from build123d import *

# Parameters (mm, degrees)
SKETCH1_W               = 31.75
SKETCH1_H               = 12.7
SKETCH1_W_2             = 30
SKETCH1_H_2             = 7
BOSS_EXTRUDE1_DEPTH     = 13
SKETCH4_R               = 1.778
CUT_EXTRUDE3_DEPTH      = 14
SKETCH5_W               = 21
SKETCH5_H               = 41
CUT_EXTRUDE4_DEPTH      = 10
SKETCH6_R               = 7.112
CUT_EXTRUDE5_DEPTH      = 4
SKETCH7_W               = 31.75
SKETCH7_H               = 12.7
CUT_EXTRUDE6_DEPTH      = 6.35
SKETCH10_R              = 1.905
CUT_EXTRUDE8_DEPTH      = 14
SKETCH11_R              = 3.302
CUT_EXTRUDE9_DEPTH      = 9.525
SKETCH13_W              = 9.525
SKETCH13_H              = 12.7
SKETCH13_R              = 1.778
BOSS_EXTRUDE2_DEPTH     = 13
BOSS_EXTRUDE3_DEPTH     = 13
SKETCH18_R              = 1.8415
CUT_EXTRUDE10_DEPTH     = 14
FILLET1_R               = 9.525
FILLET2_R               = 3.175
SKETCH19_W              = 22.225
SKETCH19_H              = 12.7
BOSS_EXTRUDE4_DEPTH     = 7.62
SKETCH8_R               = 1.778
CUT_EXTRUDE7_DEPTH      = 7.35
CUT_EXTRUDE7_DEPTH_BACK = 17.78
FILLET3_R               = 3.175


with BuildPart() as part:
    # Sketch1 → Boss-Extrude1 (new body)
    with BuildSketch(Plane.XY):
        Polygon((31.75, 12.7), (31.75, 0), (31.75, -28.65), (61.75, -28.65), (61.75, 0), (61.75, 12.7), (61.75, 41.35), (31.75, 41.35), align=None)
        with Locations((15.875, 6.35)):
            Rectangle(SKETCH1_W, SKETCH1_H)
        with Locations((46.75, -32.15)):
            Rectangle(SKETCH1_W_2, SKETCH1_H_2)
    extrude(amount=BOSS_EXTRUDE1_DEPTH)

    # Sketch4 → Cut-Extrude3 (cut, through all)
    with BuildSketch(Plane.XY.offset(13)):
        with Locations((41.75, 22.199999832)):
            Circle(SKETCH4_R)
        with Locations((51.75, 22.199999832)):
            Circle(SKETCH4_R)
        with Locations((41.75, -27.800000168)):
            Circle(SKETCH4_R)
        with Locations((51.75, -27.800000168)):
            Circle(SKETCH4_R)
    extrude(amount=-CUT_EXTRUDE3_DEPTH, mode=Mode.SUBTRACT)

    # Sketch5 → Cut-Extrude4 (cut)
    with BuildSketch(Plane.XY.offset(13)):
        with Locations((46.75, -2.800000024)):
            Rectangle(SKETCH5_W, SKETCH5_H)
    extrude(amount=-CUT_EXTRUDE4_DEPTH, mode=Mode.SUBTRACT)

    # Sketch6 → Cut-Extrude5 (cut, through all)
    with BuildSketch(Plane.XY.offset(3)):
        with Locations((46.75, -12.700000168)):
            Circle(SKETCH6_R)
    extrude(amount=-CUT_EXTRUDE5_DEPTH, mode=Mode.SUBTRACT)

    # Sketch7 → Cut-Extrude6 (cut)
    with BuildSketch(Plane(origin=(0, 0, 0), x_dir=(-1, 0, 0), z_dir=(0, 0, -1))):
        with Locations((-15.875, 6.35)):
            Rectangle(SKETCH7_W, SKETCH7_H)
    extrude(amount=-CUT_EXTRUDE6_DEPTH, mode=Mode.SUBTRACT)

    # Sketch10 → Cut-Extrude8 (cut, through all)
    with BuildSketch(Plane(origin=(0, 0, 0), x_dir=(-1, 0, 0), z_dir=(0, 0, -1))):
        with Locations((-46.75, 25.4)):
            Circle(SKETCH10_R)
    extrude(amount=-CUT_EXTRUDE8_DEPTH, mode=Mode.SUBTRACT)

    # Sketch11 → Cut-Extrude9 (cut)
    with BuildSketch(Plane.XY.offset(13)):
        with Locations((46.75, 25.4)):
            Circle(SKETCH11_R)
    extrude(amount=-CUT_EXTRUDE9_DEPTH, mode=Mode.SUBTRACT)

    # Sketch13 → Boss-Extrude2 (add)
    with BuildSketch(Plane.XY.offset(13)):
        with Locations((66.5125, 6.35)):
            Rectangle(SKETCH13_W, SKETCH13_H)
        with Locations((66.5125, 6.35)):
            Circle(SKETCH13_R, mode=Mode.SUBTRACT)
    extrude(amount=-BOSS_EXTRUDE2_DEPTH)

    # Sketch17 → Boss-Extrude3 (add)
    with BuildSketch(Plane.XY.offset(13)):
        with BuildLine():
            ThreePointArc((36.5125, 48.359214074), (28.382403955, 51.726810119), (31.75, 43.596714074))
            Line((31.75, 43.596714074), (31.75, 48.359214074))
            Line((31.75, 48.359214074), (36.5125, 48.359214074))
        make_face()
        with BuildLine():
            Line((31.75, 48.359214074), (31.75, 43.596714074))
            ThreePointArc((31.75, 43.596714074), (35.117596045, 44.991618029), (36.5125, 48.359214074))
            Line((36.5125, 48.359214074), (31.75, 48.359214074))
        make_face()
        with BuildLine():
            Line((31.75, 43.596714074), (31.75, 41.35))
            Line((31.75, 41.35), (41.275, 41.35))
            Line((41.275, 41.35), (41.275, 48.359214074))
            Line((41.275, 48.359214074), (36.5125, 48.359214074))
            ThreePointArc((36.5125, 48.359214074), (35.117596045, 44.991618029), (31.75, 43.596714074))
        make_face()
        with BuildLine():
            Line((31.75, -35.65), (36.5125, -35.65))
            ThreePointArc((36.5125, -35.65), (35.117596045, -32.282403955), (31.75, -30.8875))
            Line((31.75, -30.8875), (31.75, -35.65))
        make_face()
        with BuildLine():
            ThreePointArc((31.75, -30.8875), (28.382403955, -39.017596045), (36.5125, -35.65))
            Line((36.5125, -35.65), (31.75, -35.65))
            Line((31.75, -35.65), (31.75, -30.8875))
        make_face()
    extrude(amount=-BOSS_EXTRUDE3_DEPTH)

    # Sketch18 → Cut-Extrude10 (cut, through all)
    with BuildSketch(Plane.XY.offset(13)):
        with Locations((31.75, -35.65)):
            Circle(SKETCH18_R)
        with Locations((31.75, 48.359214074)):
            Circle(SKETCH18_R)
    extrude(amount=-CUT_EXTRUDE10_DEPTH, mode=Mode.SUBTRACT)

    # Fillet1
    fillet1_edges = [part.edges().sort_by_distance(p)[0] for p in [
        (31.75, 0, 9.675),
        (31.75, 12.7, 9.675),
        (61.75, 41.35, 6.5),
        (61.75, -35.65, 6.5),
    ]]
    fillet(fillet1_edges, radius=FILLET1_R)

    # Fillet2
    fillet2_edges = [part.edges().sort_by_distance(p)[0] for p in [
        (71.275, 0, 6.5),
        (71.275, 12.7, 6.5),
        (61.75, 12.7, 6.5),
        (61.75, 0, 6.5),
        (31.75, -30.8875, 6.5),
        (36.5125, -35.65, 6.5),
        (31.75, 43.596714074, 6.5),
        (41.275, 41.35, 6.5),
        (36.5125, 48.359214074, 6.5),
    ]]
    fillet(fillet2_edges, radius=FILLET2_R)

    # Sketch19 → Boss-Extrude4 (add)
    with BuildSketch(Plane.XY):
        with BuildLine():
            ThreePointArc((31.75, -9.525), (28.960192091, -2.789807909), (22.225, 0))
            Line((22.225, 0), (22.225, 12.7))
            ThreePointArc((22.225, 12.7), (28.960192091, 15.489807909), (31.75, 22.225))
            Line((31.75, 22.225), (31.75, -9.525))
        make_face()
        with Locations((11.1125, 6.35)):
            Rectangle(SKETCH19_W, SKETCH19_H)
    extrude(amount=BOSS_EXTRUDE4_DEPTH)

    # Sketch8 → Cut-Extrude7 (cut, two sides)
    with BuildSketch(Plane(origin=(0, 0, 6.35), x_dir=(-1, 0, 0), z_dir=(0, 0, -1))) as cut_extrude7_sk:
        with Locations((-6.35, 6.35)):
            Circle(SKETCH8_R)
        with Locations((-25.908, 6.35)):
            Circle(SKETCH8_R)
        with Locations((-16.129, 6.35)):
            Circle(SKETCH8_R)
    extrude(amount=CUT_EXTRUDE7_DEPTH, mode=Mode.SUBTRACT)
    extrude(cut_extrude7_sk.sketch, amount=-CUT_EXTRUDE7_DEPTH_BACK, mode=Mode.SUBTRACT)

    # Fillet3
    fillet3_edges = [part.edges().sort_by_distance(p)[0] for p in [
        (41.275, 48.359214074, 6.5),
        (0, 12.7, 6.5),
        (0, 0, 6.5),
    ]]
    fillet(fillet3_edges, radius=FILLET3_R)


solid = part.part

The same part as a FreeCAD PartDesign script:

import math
import FreeCAD as App
import Part
import Sketcher
from FreeCAD import Vector
Q = App.Units.Quantity


def edges_at(feature, points):
    """Names of the edges that pass closest to the given points."""
    edges = feature.Shape.Edges
    near = lambda p: min(range(len(edges)), key=lambda i: edges[i].distToShape(Part.Vertex(*p))[0])
    return sorted({f"Edge{near(p) + 1}" for p in points})


def add_polygon(sketch, points):
    """Adds a closed chain of lines whose ends are joined by coincident constraints."""
    first, n = sketch.GeometryCount, len(points)
    for a, b in zip(points, points[1:] + points[:1]):
        sketch.addGeometry(Part.LineSegment(App.Vector(*a, 0), App.Vector(*b, 0)), False)
    for i in range(n):
        sketch.addConstraint(Sketcher.Constraint("Coincident", first + i, 2, first + (i + 1) % n, 1))

doc = App.newDocument("Part")
body = doc.addObject("PartDesign::Body", "Body")

sketch1 = doc.addObject("Sketcher::SketchObject", "Sketch")
body.addObject(sketch1)
sketch1.AttachmentSupport = (doc.XY_Plane, [""])
sketch1.MapMode = "FlatFace"
add_polygon(sketch1, [(62, 41), (32, 41), (32, 13), (0, 13), (0, 0), (32, 0), (32, -36), (62, -36)])
sketch1.addConstraint(Sketcher.Constraint("Horizontal", 0))
sketch1.addConstraint(Sketcher.Constraint("Vertical", 1))
sketch1.addConstraint(Sketcher.Constraint("Horizontal", 2))
sketch1.addConstraint(Sketcher.Constraint("Vertical", 3))
sketch1.addConstraint(Sketcher.Constraint("Horizontal", 4))
sketch1.addConstraint(Sketcher.Constraint("Vertical", 5))
sketch1.addConstraint(Sketcher.Constraint("Horizontal", 6))
sketch1.addConstraint(Sketcher.Constraint("Vertical", 7))
sketch1.addConstraint(Sketcher.Constraint("Coincident", 3, 2, -1, 1))
sketch1.addConstraint(Sketcher.Constraint("Vertical", 1, 2, 4, 2))
sketch1.addConstraint(Sketcher.Constraint("DistanceY", 3, 2, 3, 1, Q("0.5 in")))
sketch1.addConstraint(Sketcher.Constraint("DistanceX", 2, 2, 2, 1, Q("1.25 in")))
sketch1.addConstraint(Sketcher.Constraint("DistanceX", 0, 2, 0, 1, Q("30 mm")))
sketch1.addConstraint(Sketcher.Constraint("DistanceY", 1, 2, 1, 1, Q("28.65 mm")))
sketch1.addConstraint(Sketcher.Constraint("DistanceY", 5, 2, 5, 1, Q("35.65 mm")))
pad1 = doc.addObject("PartDesign::Pad", "Pad")
body.addObject(pad1)
pad1.Profile = sketch1
pad1.Length = 13

sketch2 = doc.addObject("Sketcher::SketchObject", "Sketch001")
body.addObject(sketch2)
sketch2.AttachmentSupport = (doc.XY_Plane, [""])
sketch2.MapMode = "FlatFace"
sketch2.AttachmentOffset = App.Placement(Vector(0, 0, 13), App.Rotation())
sketch2.addGeometry(Part.Circle(Vector(41.8, 22.2, 0), Vector(0, 0, 1), 1.8), False)
sketch2.addGeometry(Part.Circle(Vector(51.8, 22.2, 0), Vector(0, 0, 1), 1.8), False)
sketch2.addGeometry(Part.Circle(Vector(41.8, -27.8, 0), Vector(0, 0, 1), 1.8), False)
sketch2.addGeometry(Part.Circle(Vector(51.8, -27.8, 0), Vector(0, 0, 1), 1.8), False)
sketch2.addConstraint(Sketcher.Constraint("Equal", 0, 1))
sketch2.addConstraint(Sketcher.Constraint("Equal", 1, 2))
sketch2.addConstraint(Sketcher.Constraint("Equal", 2, 3))
sketch2.addConstraint(Sketcher.Constraint("Horizontal", 0, 3, 1, 3))
sketch2.addConstraint(Sketcher.Constraint("Horizontal", 2, 3, 3, 3))
sketch2.addConstraint(Sketcher.Constraint("Vertical", 0, 3, 2, 3))
sketch2.addConstraint(Sketcher.Constraint("Vertical", 1, 3, 3, 3))
sketch2.addConstraint(Sketcher.Constraint("Diameter", 0, Q("0.14 in")))
sketch2.addConstraint(Sketcher.Constraint("DistanceX", -1, 1, 0, 3, Q("41.75 mm")))
sketch2.addConstraint(Sketcher.Constraint("DistanceY", -1, 1, 0, 3, Q("22.2 mm")))
sketch2.addConstraint(Sketcher.Constraint("DistanceX", -1, 1, 1, 3, Q("51.75 mm")))
sketch2.addConstraint(Sketcher.Constraint("DistanceY", 2, 3, -1, 1, Q("27.8 mm")))
pocket1 = doc.addObject("PartDesign::Pocket", "Pocket")
body.addObject(pocket1)
pocket1.Profile = sketch2
pocket1.Type = "ThroughAll"

sketch3 = doc.addObject("Sketcher::SketchObject", "Sketch002")
body.addObject(sketch3)
sketch3.AttachmentSupport = (doc.XY_Plane, [""])
sketch3.MapMode = "FlatFace"
sketch3.AttachmentOffset = App.Placement(Vector(0, 0, 13), App.Rotation())
add_polygon(sketch3, [(36, 18), (36, -23), (57, -23), (57, 18)])
sketch3.addConstraint(Sketcher.Constraint("Vertical", 0))
sketch3.addConstraint(Sketcher.Constraint("Horizontal", 1))
sketch3.addConstraint(Sketcher.Constraint("Vertical", 2))
sketch3.addConstraint(Sketcher.Constraint("Horizontal", 3))
sketch3.addConstraint(Sketcher.Constraint("DistanceX", 1, 1, 1, 2, Q("21 mm")))
sketch3.addConstraint(Sketcher.Constraint("DistanceY", 0, 2, 0, 1, Q("41 mm")))
sketch3.addConstraint(Sketcher.Constraint("DistanceX", -1, 1, 0, 2, Q("36.25 mm")))
sketch3.addConstraint(Sketcher.Constraint("DistanceY", 0, 2, -1, 1, Q("23.3 mm")))
pocket2 = doc.addObject("PartDesign::Pocket", "Pocket001")
body.addObject(pocket2)
pocket2.Profile = sketch3
pocket2.Length = 10

sketch4 = doc.addObject("Sketcher::SketchObject", "Sketch003")
body.addObject(sketch4)
sketch4.AttachmentSupport = (doc.XY_Plane, [""])
sketch4.MapMode = "FlatFace"
sketch4.AttachmentOffset = App.Placement(Vector(0, 0, 3), App.Rotation())
sketch4.addGeometry(Part.Circle(Vector(47, -13, 0), Vector(0, 0, 1), 7), False)
sketch4.addConstraint(Sketcher.Constraint("Diameter", 0, Q("0.56 in")))
sketch4.addConstraint(Sketcher.Constraint("DistanceY", 0, 3, -1, 1, Q("0.5 in")))
sketch4.addConstraint(Sketcher.Constraint("DistanceX", -1, 1, 0, 3, Q("46.75 mm")))
pocket3 = doc.addObject("PartDesign::Pocket", "Pocket002")
body.addObject(pocket3)
pocket3.Profile = sketch4
pocket3.Type = "ThroughAll"

sketch5 = doc.addObject("Sketcher::SketchObject", "Sketch004")
body.addObject(sketch5)
sketch5.AttachmentSupport = (doc.XY_Plane, [""])
sketch5.MapMode = "FlatFace"
add_polygon(sketch5, [(32, 13), (32, 0), (0, 0), (0, 13)])
sketch5.addConstraint(Sketcher.Constraint("Vertical", 0))
sketch5.addConstraint(Sketcher.Constraint("Horizontal", 1))
sketch5.addConstraint(Sketcher.Constraint("Vertical", 2))
sketch5.addConstraint(Sketcher.Constraint("Horizontal", 3))
sketch5.addConstraint(Sketcher.Constraint("Coincident", 1, 2, -1, 1))
sketch5.addConstraint(Sketcher.Constraint("DistanceY", 0, 2, 0, 1, Q("0.5 in")))
sketch5.addConstraint(Sketcher.Constraint("DistanceX", 1, 2, 1, 1, Q("1.25 in")))
pocket4 = doc.addObject("PartDesign::Pocket", "Pocket003")
body.addObject(pocket4)
pocket4.Profile = sketch5
pocket4.Length = Q("0.25 in")
pocket4.Reversed = True

sketch6 = doc.addObject("Sketcher::SketchObject", "Sketch005")
body.addObject(sketch6)
sketch6.AttachmentSupport = (doc.XY_Plane, [""])
sketch6.MapMode = "FlatFace"
sketch6.addGeometry(Part.Circle(Vector(46.8, 25.4, 0), Vector(0, 0, 1), 1.9), False)
sketch6.addConstraint(Sketcher.Constraint("Diameter", 0, Q("0.15 in")))
sketch6.addConstraint(Sketcher.Constraint("DistanceY", -1, 1, 0, 3, Q("1 in")))
sketch6.addConstraint(Sketcher.Constraint("DistanceX", -1, 1, 0, 3, Q("46.75 mm")))
pocket5 = doc.addObject("PartDesign::Pocket", "Pocket004")
body.addObject(pocket5)
pocket5.Profile = sketch6
pocket5.Type = "ThroughAll"
pocket5.Reversed = True

sketch7 = doc.addObject("Sketcher::SketchObject", "Sketch006")
body.addObject(sketch7)
sketch7.AttachmentSupport = (doc.XY_Plane, [""])
sketch7.MapMode = "FlatFace"
sketch7.AttachmentOffset = App.Placement(Vector(0, 0, 13), App.Rotation())
sketch7.addGeometry(Part.Circle(Vector(46.8, 25.4, 0), Vector(0, 0, 1), 3.3), False)
sketch7.addConstraint(Sketcher.Constraint("Diameter", 0, Q("0.26 in")))
sketch7.addConstraint(Sketcher.Constraint("DistanceY", -1, 1, 0, 3, Q("1 in")))
sketch7.addConstraint(Sketcher.Constraint("DistanceX", -1, 1, 0, 3, Q("46.75 mm")))
pocket6 = doc.addObject("PartDesign::Pocket", "Pocket005")
body.addObject(pocket6)
pocket6.Profile = sketch7
pocket6.Length = Q("0.375 in")

sketch8 = doc.addObject("Sketcher::SketchObject", "Sketch007")
body.addObject(sketch8)
sketch8.AttachmentSupport = (doc.XY_Plane, [""])
sketch8.MapMode = "FlatFace"
sketch8.AttachmentOffset = App.Placement(Vector(0, 0, 13), App.Rotation())
add_polygon(sketch8, [(61.8, 12.7), (61.8, 0), (71.3, 0), (71.3, 12.7)])
sketch8.addGeometry(Part.Circle(Vector(66.5, 6.3, 0), Vector(0, 0, 1), 1.8), False)
sketch8.addConstraint(Sketcher.Constraint("Vertical", 0))
sketch8.addConstraint(Sketcher.Constraint("Horizontal", 1))
sketch8.addConstraint(Sketcher.Constraint("Vertical", 2))
sketch8.addConstraint(Sketcher.Constraint("Horizontal", 3))
sketch8.addConstraint(Sketcher.Constraint("PointOnObject", 0, 2, -1))
sketch8.addConstraint(Sketcher.Constraint("Diameter", 4, Q("0.14 in")))
sketch8.addConstraint(Sketcher.Constraint("DistanceY", 0, 2, 0, 1, Q("0.5 in")))
sketch8.addConstraint(Sketcher.Constraint("DistanceX", 1, 1, 1, 2, Q("0.375 in")))
sketch8.addConstraint(Sketcher.Constraint("DistanceY", -1, 1, 4, 3, Q("0.25 in")))
sketch8.addConstraint(Sketcher.Constraint("DistanceX", 0, 2, 4, 3, Q("0.1875 in")))
sketch8.addConstraint(Sketcher.Constraint("DistanceX", -1, 1, 4, 3, Q("66.5125 mm")))
pad2 = doc.addObject("PartDesign::Pad", "Pad001")
body.addObject(pad2)
pad2.Profile = sketch8
pad2.Length = 13
pad2.Reversed = True

sketch9 = doc.addObject("Sketcher::SketchObject", "Sketch008")
body.addObject(sketch9)
sketch9.AttachmentSupport = (doc.XY_Plane, [""])
sketch9.MapMode = "FlatFace"
sketch9.AttachmentOffset = App.Placement(Vector(0, 0, 13), App.Rotation())
sketch9.addGeometry(Part.ArcOfCircle(Part.Circle(Vector(31.8, 48.4, 0), Vector(0, 0, 1), 4.8), math.radians(0), math.radians(270)), False)
sketch9.addGeometry(Part.LineSegment(Vector(31.8, 43.6, 0), Vector(31.8, 41.4, 0)), False)
sketch9.addGeometry(Part.LineSegment(Vector(31.8, 41.4, 0), Vector(41.3, 41.4, 0)), False)
sketch9.addGeometry(Part.LineSegment(Vector(41.3, 41.4, 0), Vector(41.3, 48.4, 0)), False)
sketch9.addGeometry(Part.LineSegment(Vector(41.3, 48.4, 0), Vector(36.5, 48.4, 0)), False)
sketch9.addGeometry(Part.ArcOfCircle(Part.Circle(Vector(31.7, -35.7, 0), Vector(0, 0, 1), 4.8), math.radians(0), math.radians(90)), False)
sketch9.addGeometry(Part.ArcOfCircle(Part.Circle(Vector(31.8, -35.6, 0), Vector(0, 0, 1), 4.8), math.radians(90), math.radians(360)), False)
sketch9.addConstraint(Sketcher.Constraint("Coincident", 0, 2, 1, 1))
sketch9.addConstraint(Sketcher.Constraint("Coincident", 1, 2, 2, 1))
sketch9.addConstraint(Sketcher.Constraint("Coincident", 2, 2, 3, 1))
sketch9.addConstraint(Sketcher.Constraint("Coincident", 3, 2, 4, 1))
sketch9.addConstraint(Sketcher.Constraint("Coincident", 4, 2, 0, 1))
sketch9.addConstraint(Sketcher.Constraint("Tangent", 5, 1, 6, 2))
sketch9.addConstraint(Sketcher.Constraint("Coincident", 6, 1, 5, 2))
sketch9.addConstraint(Sketcher.Constraint("Vertical", 1))
sketch9.addConstraint(Sketcher.Constraint("Horizontal", 2))
sketch9.addConstraint(Sketcher.Constraint("Vertical", 3))
sketch9.addConstraint(Sketcher.Constraint("Horizontal", 4))
sketch9.addConstraint(Sketcher.Constraint("Equal", 0, 5))
sketch9.addConstraint(Sketcher.Constraint("Horizontal", 0, 3, 3, 2))
sketch9.addConstraint(Sketcher.Constraint("Horizontal", 6, 3, 5, 1))
sketch9.addConstraint(Sketcher.Constraint("Vertical", 0, 3, 5, 3))
sketch9.addConstraint(Sketcher.Constraint("Vertical", 6, 3, 0, 2))
sketch9.addConstraint(Sketcher.Constraint("Vertical", 1, 2, 6, 1))
sketch9.addConstraint(Sketcher.Constraint("Radius", 0, Q("0.1875 in")))
sketch9.addConstraint(Sketcher.Constraint("DistanceX", 2, 1, 2, 2, Q("0.375 in")))
sketch9.addConstraint(Sketcher.Constraint("DistanceX", -1, 1, 0, 3, Q("1.25 in")))
sketch9.addConstraint(Sketcher.Constraint("DistanceY", 5, 3, -1, 1, Q("35.65 mm")))
sketch9.addConstraint(Sketcher.Constraint("DistanceY", -1, 1, 1, 2, Q("41.35 mm")))
sketch9.addConstraint(Sketcher.Constraint("DistanceY", 1, 2, 1, 1, Q("2.246714 mm")))
pad3 = doc.addObject("PartDesign::Pad", "Pad002")
body.addObject(pad3)
pad3.Profile = sketch9
pad3.Length = 13
pad3.Reversed = True

sketch10 = doc.addObject("Sketcher::SketchObject", "Sketch009")
body.addObject(sketch10)
sketch10.AttachmentSupport = (doc.XY_Plane, [""])
sketch10.MapMode = "FlatFace"
sketch10.AttachmentOffset = App.Placement(Vector(0, 0, 13), App.Rotation())
sketch10.addGeometry(Part.Circle(Vector(31.8, -35.6, 0), Vector(0, 0, 1), 1.8), False)
sketch10.addGeometry(Part.Circle(Vector(31.8, 48.4, 0), Vector(0, 0, 1), 1.8), False)
sketch10.addConstraint(Sketcher.Constraint("Equal", 0, 1))
sketch10.addConstraint(Sketcher.Constraint("Vertical", 0, 3, 1, 3))
sketch10.addConstraint(Sketcher.Constraint("Diameter", 0, Q("0.145 in")))
sketch10.addConstraint(Sketcher.Constraint("DistanceX", -1, 1, 0, 3, Q("1.25 in")))
sketch10.addConstraint(Sketcher.Constraint("DistanceY", 0, 3, -1, 1, Q("35.65 mm")))
sketch10.addConstraint(Sketcher.Constraint("DistanceY", -1, 1, 1, 3, Q("48.359214 mm")))
pocket7 = doc.addObject("PartDesign::Pocket", "Pocket006")
body.addObject(pocket7)
pocket7.Profile = sketch10
pocket7.Type = "ThroughAll"
doc.recompute()

fillet = doc.addObject("PartDesign::Fillet", "Fillet")
body.addObject(fillet)
fillet.Base = (pocket7, edges_at(pocket7, [
    (31.75, 0, 9.675),
    (31.75, 12.7, 9.675),
    (61.75, 41.35, 6.5),
    (61.75, -35.65, 6.5),
]))
fillet.Radius = Q("0.375 in")
doc.recompute()

fillet2 = doc.addObject("PartDesign::Fillet", "Fillet001")
body.addObject(fillet2)
fillet2.Base = (fillet, edges_at(fillet, [
    (71.275, 0, 6.5),
    (71.275, 12.7, 6.5),
    (61.75, 12.7, 6.5),
    (61.75, 0, 6.5),
    (31.75, -30.887, 6.5),
    (36.513, -35.65, 6.5),
    (31.75, 43.597, 6.5),
    (41.275, 41.35, 6.5),
    (36.513, 48.359, 6.5),
]))
fillet2.Radius = Q("0.125 in")

sketch11 = doc.addObject("Sketcher::SketchObject", "Sketch010")
body.addObject(sketch11)
sketch11.AttachmentSupport = (doc.XY_Plane, [""])
sketch11.MapMode = "FlatFace"
sketch11.addGeometry(Part.ArcOfCircle(Part.Circle(Vector(22, -10, 0), Vector(0, 0, 1), 10), math.radians(0), math.radians(90)), False)
sketch11.addGeometry(Part.LineSegment(Vector(32, -10, 0), Vector(32, 22, 0)), False)
sketch11.addGeometry(Part.ArcOfCircle(Part.Circle(Vector(22, 22, 0), Vector(0, 0, 1), 10), math.radians(-90), math.radians(0)), False)
sketch11.addGeometry(Part.LineSegment(Vector(22, 13, 0), Vector(0, 13, 0)), False)
sketch11.addGeometry(Part.LineSegment(Vector(0, 13, 0), Vector(0, 0, 0)), False)
sketch11.addGeometry(Part.LineSegment(Vector(0, 0, 0), Vector(22, 0, 0)), False)
sketch11.addConstraint(Sketcher.Constraint("Tangent", 0, 1, 1, 1))
sketch11.addConstraint(Sketcher.Constraint("Tangent", 1, 2, 2, 2))
sketch11.addConstraint(Sketcher.Constraint("Tangent", 2, 1, 3, 1))
sketch11.addConstraint(Sketcher.Constraint("Coincident", 3, 2, 4, 1))
sketch11.addConstraint(Sketcher.Constraint("Coincident", 4, 2, 5, 1))
sketch11.addConstraint(Sketcher.Constraint("Tangent", 5, 2, 0, 2))
sketch11.addConstraint(Sketcher.Constraint("Vertical", 1))
sketch11.addConstraint(Sketcher.Constraint("Horizontal", 3))
sketch11.addConstraint(Sketcher.Constraint("Vertical", 4))
sketch11.addConstraint(Sketcher.Constraint("Horizontal", 5))
sketch11.addConstraint(Sketcher.Constraint("Coincident", 4, 2, -1, 1))
sketch11.addConstraint(Sketcher.Constraint("Equal", 0, 2))
sketch11.addConstraint(Sketcher.Constraint("DistanceY", 4, 2, 4, 1, Q("0.5 in")))
sketch11.addConstraint(Sketcher.Constraint("Radius", 0, Q("0.375 in")))
sketch11.addConstraint(Sketcher.Constraint("DistanceX", 3, 2, 3, 1, Q("0.875 in")))
pad4 = doc.addObject("PartDesign::Pad", "Pad003")
body.addObject(pad4)
pad4.Profile = sketch11
pad4.Length = Q("0.3 in")

sketch12 = doc.addObject("Sketcher::SketchObject", "Sketch011")
body.addObject(sketch12)
sketch12.AttachmentSupport = (doc.XY_Plane, [""])
sketch12.MapMode = "FlatFace"
sketch12.AttachmentOffset = App.Placement(Vector(0, 0, 0.25 * 25.4), App.Rotation())
sketch12.addGeometry(Part.Circle(Vector(6.3, 6.3, 0), Vector(0, 0, 1), 1.8), False)
sketch12.addGeometry(Part.Circle(Vector(25.9, 6.3, 0), Vector(0, 0, 1), 1.8), False)
sketch12.addGeometry(Part.Circle(Vector(16.1, 6.3, 0), Vector(0, 0, 1), 1.8), False)
sketch12.addConstraint(Sketcher.Constraint("Equal", 0, 1))
sketch12.addConstraint(Sketcher.Constraint("Equal", 1, 2))
sketch12.addConstraint(Sketcher.Constraint("Horizontal", 0, 3, 1, 3))
sketch12.addConstraint(Sketcher.Constraint("Horizontal", 1, 3, 2, 3))
sketch12.addConstraint(Sketcher.Constraint("Diameter", 0, Q("0.14 in")))
sketch12.addConstraint(Sketcher.Constraint("DistanceX", -1, 1, 0, 3, Q("0.25 in")))
sketch12.addConstraint(Sketcher.Constraint("DistanceY", -1, 1, 0, 3, Q("0.25 in")))
sketch12.addConstraint(Sketcher.Constraint("DistanceX", -1, 1, 1, 3, Q("1.02 in")))
sketch12.addConstraint(Sketcher.Constraint("DistanceX", -1, 1, 2, 3, Q("0.635 in")))
pocket8 = doc.addObject("PartDesign::Pocket", "Pocket007")
body.addObject(pocket8)
pocket8.Profile = sketch12
pocket8.Type = "ThroughAll"
pocket8.Midplane = True
doc.recompute()

fillet3 = doc.addObject("PartDesign::Fillet", "Fillet002")
body.addObject(fillet3)
fillet3.Base = (pocket8, edges_at(pocket8, [(41.275, 48.359, 6.5), (0, 12.7, 6.5), (0, 0, 6.5)]))
fillet3.Radius = Q("0.125 in")

doc.recompute()
